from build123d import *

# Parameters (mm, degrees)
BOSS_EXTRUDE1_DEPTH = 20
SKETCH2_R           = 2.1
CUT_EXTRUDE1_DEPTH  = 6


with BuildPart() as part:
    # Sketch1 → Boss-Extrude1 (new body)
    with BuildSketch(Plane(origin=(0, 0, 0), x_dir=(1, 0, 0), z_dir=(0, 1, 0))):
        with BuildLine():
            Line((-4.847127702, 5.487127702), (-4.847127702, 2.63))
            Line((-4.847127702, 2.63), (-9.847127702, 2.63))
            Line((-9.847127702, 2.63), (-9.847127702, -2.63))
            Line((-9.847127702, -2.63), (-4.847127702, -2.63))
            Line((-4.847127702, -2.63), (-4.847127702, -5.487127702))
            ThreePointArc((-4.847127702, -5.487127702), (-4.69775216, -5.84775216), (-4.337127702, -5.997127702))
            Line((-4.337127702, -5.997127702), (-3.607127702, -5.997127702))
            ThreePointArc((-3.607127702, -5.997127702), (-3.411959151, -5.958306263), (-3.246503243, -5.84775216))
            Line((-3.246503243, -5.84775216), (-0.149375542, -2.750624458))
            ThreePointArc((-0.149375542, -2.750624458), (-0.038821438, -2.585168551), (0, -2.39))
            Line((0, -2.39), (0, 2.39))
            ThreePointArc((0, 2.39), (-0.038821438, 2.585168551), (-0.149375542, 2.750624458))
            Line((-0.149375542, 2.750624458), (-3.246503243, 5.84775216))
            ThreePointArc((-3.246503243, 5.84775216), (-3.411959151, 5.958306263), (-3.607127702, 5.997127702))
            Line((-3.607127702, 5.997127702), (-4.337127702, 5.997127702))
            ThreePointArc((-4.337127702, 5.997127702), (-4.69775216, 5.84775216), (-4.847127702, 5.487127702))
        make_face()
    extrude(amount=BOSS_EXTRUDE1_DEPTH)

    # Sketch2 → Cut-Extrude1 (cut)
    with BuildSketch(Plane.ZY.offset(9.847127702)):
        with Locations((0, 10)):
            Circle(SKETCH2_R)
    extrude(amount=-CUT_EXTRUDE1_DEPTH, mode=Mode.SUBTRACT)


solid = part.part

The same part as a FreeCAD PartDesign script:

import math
import FreeCAD as App
import Part
import Sketcher

V = App.Vector
Q = App.Units.Quantity

doc = App.newDocument("Part")
params = doc.addObject("Spreadsheet::Sheet", "Params")
for row, (alias, value) in enumerate([
    ("sketch1_width", "5 mm"),
    ("sketch1_radius", "0.51 mm"),
    ("sketch1_width2", "0.73 mm"),
    ("sketch1_height", "5.26 mm"),
    ("sketch1_height2", "4.78 mm"),
    ("pad1_length", "20 mm"),
    ("sketch2_diameter", "4.2 mm"),
    ("pocket1_length", "6 mm"),
], start=1):
    params.set(f"A{row}", alias)
    params.set(f"B{row}", "=" + value)
    params.setAlias(f"B{row}", alias)

body = doc.addObject("PartDesign::Body", "Body")

# Sketch on XZ plane
sketch1 = body.newObject("Sketcher::SketchObject", "Sketch")
sketch1.AttachmentSupport = (doc.getObject("XZ_Plane"), [""])
sketch1.MapMode = "FlatFace"
sketch1.addGeometry([
    Part.LineSegment(V(-4.85, -5.49, 0), V(-4.85, -2.63, 0)),  # 0
    Part.LineSegment(V(-4.85, -2.63, 0), V(-9.85, -2.63, 0)),  # 1
    Part.LineSegment(V(-9.85, -2.63, 0), V(-9.85, 2.63, 0)),  # 2
    Part.LineSegment(V(-9.85, 2.63, 0), V(-4.85, 2.63, 0)),  # 3
    Part.LineSegment(V(-4.85, 2.63, 0), V(-4.85, 5.49, 0)),  # 4
    Part.ArcOfCircle(Part.Circle(V(-4.34, 5.49, 0), V(0, 0, 1), 0.51), math.radians(90), math.radians(180)),  # 5
    Part.LineSegment(V(-4.34, 6, 0), V(-3.61, 6, 0)),  # 6
    Part.ArcOfCircle(Part.Circle(V(-3.61, 5.49, 0), V(0, 0, 1), 0.51), math.radians(45), math.radians(90)),  # 7
    Part.LineSegment(V(-3.25, 5.85, 0), V(-0.15, 2.75, 0)),  # 8
    Part.ArcOfCircle(Part.Circle(V(-0.51, 2.39, 0), V(0, 0, 1), 0.51), math.radians(0), math.radians(45)),  # 9
    Part.LineSegment(V(0, 2.39, 0), V(0, -2.39, 0)),  # 10
    Part.ArcOfCircle(Part.Circle(V(-0.51, -2.39, 0), V(0, 0, 1), 0.51), math.radians(-45), math.radians(0)),  # 11
    Part.LineSegment(V(-0.15, -2.75, 0), V(-3.25, -5.85, 0)),  # 12
    Part.ArcOfCircle(Part.Circle(V(-3.61, -5.49, 0), V(0, 0, 1), 0.51), math.radians(-90), math.radians(-45)),  # 13
    Part.LineSegment(V(-3.61, -6, 0), V(-4.34, -6, 0)),  # 14
    Part.ArcOfCircle(Part.Circle(V(-4.34, -5.49, 0), V(0, 0, 1), 0.51), math.radians(-180), math.radians(-90)),  # 15
], False)
sketch1.addConstraint([
    Sketcher.Constraint("Coincident", 0, 2, 1, 1),
    Sketcher.Constraint("Coincident", 1, 2, 2, 1),
    Sketcher.Constraint("Coincident", 2, 2, 3, 1),
    Sketcher.Constraint("Coincident", 3, 2, 4, 1),
    Sketcher.Constraint("Tangent", 4, 2, 5, 2),
    Sketcher.Constraint("Tangent", 5, 1, 6, 1),
    Sketcher.Constraint("Tangent", 6, 2, 7, 2),
    Sketcher.Constraint("Tangent", 7, 1, 8, 1),
    Sketcher.Constraint("Tangent", 8, 2, 9, 2),
    Sketcher.Constraint("Tangent", 9, 1, 10, 1),
    Sketcher.Constraint("Tangent", 10, 2, 11, 2),
    Sketcher.Constraint("Tangent", 11, 1, 12, 1),
    Sketcher.Constraint("Tangent", 12, 2, 13, 2),
    Sketcher.Constraint("Tangent", 13, 1, 14, 1),
    Sketcher.Constraint("Tangent", 14, 2, 15, 2),
    Sketcher.Constraint("Tangent", 15, 1, 0, 1),
    Sketcher.Constraint("Vertical", 0),
    Sketcher.Constraint("Horizontal", 1),
    Sketcher.Constraint("Vertical", 2),
    Sketcher.Constraint("Horizontal", 3),
    Sketcher.Constraint("Vertical", 4),
    Sketcher.Constraint("Horizontal", 6),
    Sketcher.Constraint("Vertical", 10),
    Sketcher.Constraint("Horizontal", 14),
    Sketcher.Constraint("Equal", 5, 7),
    Sketcher.Constraint("Equal", 7, 9),
    Sketcher.Constraint("Equal", 9, 11),
    Sketcher.Constraint("Equal", 11, 13),
    Sketcher.Constraint("Equal", 13, 15),
    Sketcher.Constraint("Symmetric", 9, 1, 10, 2, -1, 1),
    Sketcher.Constraint("Symmetric", 7, 3, 13, 3, -1),
    Sketcher.Constraint("Symmetric", 0, 2, 3, 2, -1),
    Sketcher.Constraint("Perpendicular", 8, 12),
    Sketcher.Constraint("DistanceX", 1, 2, 1, 1, Q("5 mm")),
    Sketcher.Constraint("Radius", 5, Q("0.51 mm")),
    Sketcher.Constraint("DistanceX", 6, 1, 6, 2, Q("0.73 mm")),
    Sketcher.Constraint("DistanceY", 2, 1, 2, 2, Q("5.26 mm")),
    Sketcher.Constraint("DistanceY", 10, 2, 10, 1, Q("4.78 mm")),
    Sketcher.Constraint("Distance", 8, Q("4.38 mm")),
])
sketch1.setExpression("Constraints[33]", "Params.sketch1_width")
sketch1.setExpression("Constraints[34]", "Params.sketch1_radius")
sketch1.setExpression("Constraints[35]", "Params.sketch1_width2")
sketch1.setExpression("Constraints[36]", "Params.sketch1_height")
sketch1.setExpression("Constraints[37]", "Params.sketch1_height2")
pad1 = body.newObject("PartDesign::Pad", "Pad")
pad1.Profile = sketch1
pad1.setExpression("Length", "Params.pad1_length")
pad1.Reversed = True

# Sketch on YZ plane
sketch2 = body.newObject("Sketcher::SketchObject", "Sketch001")
sketch2.AttachmentSupport = (doc.getObject("YZ_Plane"), [""])
sketch2.MapMode = "FlatFace"
sketch2.AttachmentOffset = App.Placement(V(0, 0, -9.847128), App.Rotation())
sketch2.addGeometry(Part.Circle(V(10, 0, 0), V(0, 0, 1), 2.1), False)
sketch2.addConstraint([
    Sketcher.Constraint("PointOnObject", 0, 3, -1),
    Sketcher.Constraint("Diameter", 0, Q("4.2 mm")),
    Sketcher.Constraint("DistanceX", -1, 1, 0, 3, Q("10 mm")),
])
sketch2.setExpression("Constraints[1]", "Params.sketch2_diameter")
pocket1 = body.newObject("PartDesign::Pocket", "Pocket")
pocket1.Profile = sketch2
pocket1.setExpression("Length", "Params.pocket1_length")
pocket1.Reversed = True

doc.recompute()
